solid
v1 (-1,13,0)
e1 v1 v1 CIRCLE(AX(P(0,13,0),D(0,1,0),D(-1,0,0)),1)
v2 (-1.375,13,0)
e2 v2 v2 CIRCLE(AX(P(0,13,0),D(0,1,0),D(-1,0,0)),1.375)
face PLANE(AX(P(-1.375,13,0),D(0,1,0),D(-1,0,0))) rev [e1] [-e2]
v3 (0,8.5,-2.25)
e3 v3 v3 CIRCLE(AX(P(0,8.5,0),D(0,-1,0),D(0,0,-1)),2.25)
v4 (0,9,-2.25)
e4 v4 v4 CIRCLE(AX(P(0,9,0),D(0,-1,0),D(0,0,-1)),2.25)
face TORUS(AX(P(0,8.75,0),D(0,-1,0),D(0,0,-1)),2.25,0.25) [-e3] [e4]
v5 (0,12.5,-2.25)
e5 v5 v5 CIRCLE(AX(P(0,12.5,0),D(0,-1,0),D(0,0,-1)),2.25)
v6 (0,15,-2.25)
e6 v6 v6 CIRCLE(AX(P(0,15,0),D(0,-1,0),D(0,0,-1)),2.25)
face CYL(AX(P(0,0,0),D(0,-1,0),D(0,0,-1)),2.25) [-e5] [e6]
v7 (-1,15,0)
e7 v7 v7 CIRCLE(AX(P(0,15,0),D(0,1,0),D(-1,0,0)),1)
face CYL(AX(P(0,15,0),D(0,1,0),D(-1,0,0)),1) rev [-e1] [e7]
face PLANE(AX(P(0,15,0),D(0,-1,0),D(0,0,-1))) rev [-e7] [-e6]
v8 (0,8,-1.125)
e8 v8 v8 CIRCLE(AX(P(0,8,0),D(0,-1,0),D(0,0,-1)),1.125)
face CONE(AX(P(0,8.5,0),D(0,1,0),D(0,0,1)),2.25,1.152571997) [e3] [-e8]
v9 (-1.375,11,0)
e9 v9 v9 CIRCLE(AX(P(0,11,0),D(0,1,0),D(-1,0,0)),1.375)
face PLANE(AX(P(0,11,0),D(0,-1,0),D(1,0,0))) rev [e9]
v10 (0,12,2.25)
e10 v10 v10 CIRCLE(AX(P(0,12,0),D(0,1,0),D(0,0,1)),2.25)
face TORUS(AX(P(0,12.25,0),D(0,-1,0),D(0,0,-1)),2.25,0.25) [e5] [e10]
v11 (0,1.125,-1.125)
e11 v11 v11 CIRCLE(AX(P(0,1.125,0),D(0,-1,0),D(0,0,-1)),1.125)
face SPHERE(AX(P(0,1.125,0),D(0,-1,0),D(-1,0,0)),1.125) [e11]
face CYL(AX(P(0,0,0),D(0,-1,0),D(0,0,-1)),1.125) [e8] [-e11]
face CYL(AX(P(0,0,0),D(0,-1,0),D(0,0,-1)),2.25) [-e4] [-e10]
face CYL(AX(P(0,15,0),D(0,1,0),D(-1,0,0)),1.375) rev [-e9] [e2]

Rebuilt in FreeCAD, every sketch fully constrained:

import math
import FreeCAD as App
import Part
import Sketcher
from FreeCAD import Vector

doc = App.newDocument("Part")
params = doc.addObject("Spreadsheet::Sheet", "Params")
for row, (alias, value) in enumerate([
    ("sketch1_height", "15 mm"),
    ("sketch1_height2", "6.5 mm"),
    ("sketch1_width", "2.25 mm"),
    ("revolution_angle", "360 deg"),
    ("sketch2_width", "1 mm"),
    ("sketch2_height", "4 mm"),
    ("groove_angle", "360 deg"),
    ("sketch3_radius", "0.25 mm"),
    ("revolution2_angle", "360 deg"),
], start=1):
    params.set(f"A{row}", alias)
    params.set(f"B{row}", "=" + value)
    params.setAlias(f"B{row}", alias)

body = doc.addObject("PartDesign::Body", "Body")

sketch1 = doc.addObject("Sketcher::SketchObject", "Sketch")
body.addObject(sketch1)
sketch1.AttachmentSupport = (doc.XY_Plane, [""])
sketch1.MapMode = "FlatFace"
sketch1.addGeometry(Part.LineSegment(Vector(-2.2, 15, 0), Vector(-2.2, 8.5, 0)), False)
sketch1.addGeometry(Part.LineSegment(Vector(-2.2, 8.5, 0), Vector(-1.1, 8, 0)), False)
sketch1.addGeometry(Part.LineSegment(Vector(-1.1, 8, 0), Vector(-1.1, 1.1, 0)), False)
sketch1.addGeometry(Part.ArcOfCircle(Part.Circle(Vector(0, 1.1, 0), Vector(0, 0, 1), 1.1), math.radians(180), math.radians(270)), False)
sketch1.addGeometry(Part.LineSegment(Vector(0, 0, 0), Vector(0, 15, 0)), False)
sketch1.addGeometry(Part.LineSegment(Vector(0, 15, 0), Vector(-2.2, 15, 0)), False)
sketch1.addConstraint(Sketcher.Constraint("Coincident", 0, 2, 1, 1))
sketch1.addConstraint(Sketcher.Constraint("Coincident", 1, 2, 2, 1))
sketch1.addConstraint(Sketcher.Constraint("Tangent", 2, 2, 3, 1))
sketch1.addConstraint(Sketcher.Constraint("Coincident", 3, 2, 4, 1))
sketch1.addConstraint(Sketcher.Constraint("Coincident", 4, 2, 5, 1))
sketch1.addConstraint(Sketcher.Constraint("Coincident", 5, 2, 0, 1))
sketch1.addConstraint(Sketcher.Constraint("Vertical", 0))
sketch1.addConstraint(Sketcher.Constraint("Vertical", 2))
sketch1.addConstraint(Sketcher.Constraint("Vertical", 4))
sketch1.addConstraint(Sketcher.Constraint("Horizontal", 5))
sketch1.addConstraint(Sketcher.Constraint("Coincident", 3, 2, -1, 1))
sketch1.addConstraint(Sketcher.Constraint("PointOnObject", 3, 3, -2))
sketch1.addConstraint(Sketcher.Constraint("DistanceY", 4, 1, 4, 2, 15.0))
sketch1.addConstraint(Sketcher.Constraint("DistanceY", 0, 2, 0, 1, 6.5))
sketch1.addConstraint(Sketcher.Constraint("DistanceY", -1, 1, 1, 2, 8.0))
sketch1.addConstraint(Sketcher.Constraint("Radius", 3, 1.125))
sketch1.addConstraint(Sketcher.Constraint("DistanceX", 5, 2, 5, 1, 2.25))
sketch1.setExpression("Constraints[12]", "Params.sketch1_height")
sketch1.setExpression("Constraints[13]", "Params.sketch1_height2")
sketch1.setExpression("Constraints[16]", "Params.sketch1_width")
revolution = doc.addObject("PartDesign::Revolution", "Revolution")
body.addObject(revolution)
revolution.Profile = sketch1
revolution.ReferenceAxis = (sketch1, ["V_Axis"])
revolution.setExpression("Angle", "Params.revolution_angle")

sketch2 = doc.addObject("Sketcher::SketchObject", "Sketch001")
body.addObject(sketch2)
sketch2.AttachmentSupport = (doc.XY_Plane, [""])
sketch2.MapMode = "FlatFace"
sketch2.addGeometry(Part.LineSegment(Vector(0, 11, 0), Vector(0, 15, 0)), False)
sketch2.addGeometry(Part.LineSegment(Vector(0, 15, 0), Vector(-1, 15, 0)), False)
sketch2.addGeometry(Part.LineSegment(Vector(-1, 15, 0), Vector(-1, 13, 0)), False)
sketch2.addGeometry(Part.LineSegment(Vector(-1, 13, 0), Vector(-1.38, 13, 0)), False)
sketch2.addGeometry(Part.LineSegment(Vector(-1.38, 13, 0), Vector(-1.38, 11, 0)), False)
sketch2.addGeometry(Part.LineSegment(Vector(-1.38, 11, 0), Vector(0, 11, 0)), False)
sketch2.addConstraint(Sketcher.Constraint("Coincident", 0, 2, 1, 1))
sketch2.addConstraint(Sketcher.Constraint("Coincident", 1, 2, 2, 1))
sketch2.addConstraint(Sketcher.Constraint("Coincident", 2, 2, 3, 1))
sketch2.addConstraint(Sketcher.Constraint("Coincident", 3, 2, 4, 1))
sketch2.addConstraint(Sketcher.Constraint("Coincident", 4, 2, 5, 1))
sketch2.addConstraint(Sketcher.Constraint("Coincident", 5, 2, 0, 1))
sketch2.addConstraint(Sketcher.Constraint("Vertical", 0))
sketch2.addConstraint(Sketcher.Constraint("Horizontal", 1))
sketch2.addConstraint(Sketcher.Constraint("Vertical", 2))
sketch2.addConstraint(Sketcher.Constraint("Horizontal", 3))
sketch2.addConstraint(Sketcher.Constraint("Vertical", 4))
sketch2.addConstraint(Sketcher.Constraint("Horizontal", 5))
sketch2.addConstraint(Sketcher.Constraint("PointOnObject", 0, 2, -2))
sketch2.addConstraint(Sketcher.Constraint("Equal", 2, 4))
sketch2.addConstraint(Sketcher.Constraint("DistanceX", 1, 2, 1, 1, 1.0))
sketch2.addConstraint(Sketcher.Constraint("DistanceY", 0, 1, 0, 2, 4.0))
sketch2.addConstraint(Sketcher.Constraint("DistanceY", -1, 1, 0, 2, 15.0))
sketch2.addConstraint(Sketcher.Constraint("DistanceX", 3, 2, 3, 1, 0.375))
sketch2.setExpression("Constraints[14]", "Params.sketch2_width")
sketch2.setExpression("Constraints[15]", "Params.sketch2_height")
groove = doc.addObject("PartDesign::Groove", "Groove")
body.addObject(groove)
groove.Profile = sketch2
groove.ReferenceAxis = (sketch2, ["V_Axis"])
groove.setExpression("Angle", "Params.groove_angle")

sketch3 = doc.addObject("Sketcher::SketchObject", "Sketch002")
body.addObject(sketch3)
sketch3.AttachmentSupport = (doc.XY_Plane, [""])
sketch3.MapMode = "FlatFace"
sketch3.addGeometry(Part.LineSegment(Vector(-2.25, 12, 0), Vector(-2.25, 12.5, 0)), False)
sketch3.addGeometry(Part.ArcOfCircle(Part.Circle(Vector(-2.25, 12.25, 0), Vector(0, 0, 1), 0.25), math.radians(90), math.radians(270)), False)
sketch3.addGeometry(Part.LineSegment(Vector(-2.25, 8.5, 0), Vector(-2.25, 9, 0)), False)
sketch3.addGeometry(Part.ArcOfCircle(Part.Circle(Vector(-2.25, 8.75, 0), Vector(0, 0, 1), 0.25), math.radians(90), math.radians(270)), False)
sketch3.addConstraint(Sketcher.Constraint("Coincident", 0, 1, 1, 2))
sketch3.addConstraint(Sketcher.Constraint("Coincident", 1, 1, 0, 2))
sketch3.addConstraint(Sketcher.Constraint("Coincident", 2, 1, 3, 2))
sketch3.addConstraint(Sketcher.Constraint("Coincident", 3, 1, 2, 2))
sketch3.addConstraint(Sketcher.Constraint("Vertical", 0))
sketch3.addConstraint(Sketcher.Constraint("Vertical", 2))
sketch3.addConstraint(Sketcher.Constraint("Equal", 1, 3))
sketch3.addConstraint(Sketcher.Constraint("Vertical", 1, 3, 3, 3))
sketch3.addConstraint(Sketcher.Constraint("Vertical", 3, 3, 0, 1))
sketch3.addConstraint(Sketcher.Constraint("Vertical", 1, 1, 2, 1))
sketch3.addConstraint(Sketcher.Constraint("Radius", 1, 0.25))
sketch3.addConstraint(Sketcher.Constraint("DistanceY", -1, 1, 0, 1, 12.0))
sketch3.addConstraint(Sketcher.Constraint("DistanceY", -1, 1, 3, 1, 9.0))
sketch3.addConstraint(Sketcher.Constraint("DistanceX", 1, 3, -1, 1, 2.25))
sketch3.setExpression("Constraints[10]", "Params.sketch3_radius")
revolution2 = doc.addObject("PartDesign::Revolution", "Revolution001")
body.addObject(revolution2)
revolution2.Profile = sketch3
revolution2.ReferenceAxis = (sketch3, ["V_Axis"])
revolution2.setExpression("Angle", "Params.revolution2_angle")

doc.recompute()
